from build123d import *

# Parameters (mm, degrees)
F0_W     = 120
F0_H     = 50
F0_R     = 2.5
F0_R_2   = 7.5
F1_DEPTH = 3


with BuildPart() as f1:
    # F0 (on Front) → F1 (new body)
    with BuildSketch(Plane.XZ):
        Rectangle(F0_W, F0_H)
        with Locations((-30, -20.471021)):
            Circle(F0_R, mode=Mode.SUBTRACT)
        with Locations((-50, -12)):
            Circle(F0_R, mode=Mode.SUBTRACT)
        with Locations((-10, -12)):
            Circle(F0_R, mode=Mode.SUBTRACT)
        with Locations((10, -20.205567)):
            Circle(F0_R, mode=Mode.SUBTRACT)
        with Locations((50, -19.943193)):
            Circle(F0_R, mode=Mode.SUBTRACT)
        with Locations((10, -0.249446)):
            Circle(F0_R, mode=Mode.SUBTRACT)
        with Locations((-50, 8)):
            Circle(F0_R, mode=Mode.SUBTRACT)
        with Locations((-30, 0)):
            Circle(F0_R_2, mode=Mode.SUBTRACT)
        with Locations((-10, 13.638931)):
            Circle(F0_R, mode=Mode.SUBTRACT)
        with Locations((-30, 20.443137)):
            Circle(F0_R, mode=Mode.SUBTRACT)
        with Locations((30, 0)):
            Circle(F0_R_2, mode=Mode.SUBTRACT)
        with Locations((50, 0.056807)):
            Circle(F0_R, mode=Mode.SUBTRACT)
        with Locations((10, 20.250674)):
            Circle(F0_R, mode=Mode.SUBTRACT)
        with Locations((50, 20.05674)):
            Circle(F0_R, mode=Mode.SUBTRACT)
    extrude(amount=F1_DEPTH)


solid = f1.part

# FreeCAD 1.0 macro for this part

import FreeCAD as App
import Part
import Sketcher
from FreeCAD import Vector
Q = App.Units.Quantity

doc = App.newDocument("Part")
body = doc.addObject("PartDesign::Body", "Body")

sketch1 = body.newObject("Sketcher::SketchObject", "Sketch")
sketch1.AttachmentSupport = (doc.getObject("XZ_Plane"), [""])
sketch1.MapMode = "FlatFace"
sketch1.addGeometry(Part.LineSegment(Vector(-60, 25, 0), Vector(-60, -25, 0)), False)
sketch1.addGeometry(Part.LineSegment(Vector(-60, -25, 0), Vector(60, -25, 0)), False)
sketch1.addGeometry(Part.LineSegment(Vector(60, -25, 0), Vector(60, 25, 0)), False)
sketch1.addGeometry(Part.LineSegment(Vector(60, 25, 0), Vector(-60, 25, 0)), False)
sketch1.addGeometry(Part.Circle(Vector(-30, -20.5, 0), Vector(0, 0, 1), 2.5), False)
sketch1.addGeometry(Part.Circle(Vector(-50, -12, 0), Vector(0, 0, 1), 2.5), False)
sketch1.addGeometry(Part.Circle(Vector(-10, -12, 0), Vector(0, 0, 1), 2.5), False)
sketch1.addGeometry(Part.Circle(Vector(10, -20.2, 0), Vector(0, 0, 1), 2.5), False)
sketch1.addGeometry(Part.Circle(Vector(50, -19.9, 0), Vector(0, 0, 1), 2.5), False)
sketch1.addGeometry(Part.Circle(Vector(10, -0.2, 0), Vector(0, 0, 1), 2.5), False)
sketch1.addGeometry(Part.Circle(Vector(-30, 0, 0), Vector(0, 0, 1), 7.5), False)
sketch1.addGeometry(Part.Circle(Vector(-50, 8, 0), Vector(0, 0, 1), 2.5), False)
sketch1.addGeometry(Part.Circle(Vector(-30, 20.4, 0), Vector(0, 0, 1), 2.5), False)
sketch1.addGeometry(Part.Circle(Vector(-10, 13.6, 0), Vector(0, 0, 1), 2.5), False)
sketch1.addGeometry(Part.Circle(Vector(30, 0, 0), Vector(0, 0, 1), 7.5), False)
sketch1.addGeometry(Part.Circle(Vector(50, 0.1, 0), Vector(0, 0, 1), 2.5), False)
sketch1.addGeometry(Part.Circle(Vector(10, 20.3, 0), Vector(0, 0, 1), 2.5), False)
sketch1.addGeometry(Part.Circle(Vector(50, 20.1, 0), Vector(0, 0, 1), 2.5), False)
sketch1.addConstraint(Sketcher.Constraint("Coincident", 0, 2, 1, 1))
sketch1.addConstraint(Sketcher.Constraint("Coincident", 1, 2, 2, 1))
sketch1.addConstraint(Sketcher.Constraint("Coincident", 2, 2, 3, 1))
sketch1.addConstraint(Sketcher.Constraint("Coincident", 3, 2, 0, 1))
sketch1.addConstraint(Sketcher.Constraint("Vertical", 0))
sketch1.addConstraint(Sketcher.Constraint("Horizontal", 1))
sketch1.addConstraint(Sketcher.Constraint("Vertical", 2))
sketch1.addConstraint(Sketcher.Constraint("Horizontal", 3))
sketch1.addConstraint(Sketcher.Constraint("Equal", 4, 5))
sketch1.addConstraint(Sketcher.Constraint("Equal", 5, 6))
sketch1.addConstraint(Sketcher.Constraint("Equal", 6, 7))
sketch1.addConstraint(Sketcher.Constraint("Equal", 7, 8))
sketch1.addConstraint(Sketcher.Constraint("Equal", 8, 9))
sketch1.addConstraint(Sketcher.Constraint("Equal", 9, 11))
sketch1.addConstraint(Sketcher.Constraint("Equal", 11, 12))
sketch1.addConstraint(Sketcher.Constraint("Equal", 12, 13))
sketch1.addConstraint(Sketcher.Constraint("Equal", 10, 14))
sketch1.addConstraint(Sketcher.Constraint("Equal", 13, 15))
sketch1.addConstraint(Sketcher.Constraint("Equal", 15, 16))
sketch1.addConstraint(Sketcher.Constraint("Equal", 16, 17))
sketch1.addConstraint(Sketcher.Constraint("Symmetric", 10, 3, 14, 3, -1, 1))
sketch1.addConstraint(Sketcher.Constraint("Symmetric", 0, 2, 2, 2, -1, 1))
sketch1.addConstraint(Sketcher.Constraint("PointOnObject", 10, 3, -1))
sketch1.addConstraint(Sketcher.Constraint("Horizontal", 5, 3, 6, 3))
sketch1.addConstraint(Sketcher.Constraint("Vertical", 7, 3, 9, 3))
sketch1.addConstraint(Sketcher.Constraint("Vertical", 4, 3, 10, 3))
sketch1.addConstraint(Sketcher.Constraint("Vertical", 5, 3, 11, 3))
sketch1.addConstraint(Sketcher.Constraint("Vertical", 10, 3, 12, 3))
sketch1.addConstraint(Sketcher.Constraint("Vertical", 6, 3, 13, 3))
sketch1.addConstraint(Sketcher.Constraint("Vertical", 8, 3, 15, 3))
sketch1.addConstraint(Sketcher.Constraint("Vertical", 9, 3, 16, 3))
sketch1.addConstraint(Sketcher.Constraint("Vertical", 15, 3, 17, 3))
sketch1.addConstraint(Sketcher.Constraint("Diameter", 4, Q("5 mm")))
sketch1.addConstraint(Sketcher.Constraint("Diameter", 10, Q("15 mm")))
sketch1.addConstraint(Sketcher.Constraint("DistanceX", 1, 1, 1, 2, Q("120 mm")))
sketch1.addConstraint(Sketcher.Constraint("DistanceY", 0, 2, 0, 1, Q("50 mm")))
sketch1.addConstraint(Sketcher.Constraint("DistanceX", 4, 3, -1, 1, Q("30 mm")))
sketch1.addConstraint(Sketcher.Constraint("DistanceX", 5, 3, -1, 1, Q("50 mm")))
sketch1.addConstraint(Sketcher.Constraint("DistanceY", 5, 3, -1, 1, Q("12 mm")))
sketch1.addConstraint(Sketcher.Constraint("DistanceX", 6, 3, -1, 1, Q("10 mm")))
sketch1.addConstraint(Sketcher.Constraint("DistanceX", -1, 1, 7, 3, Q("10 mm")))
sketch1.addConstraint(Sketcher.Constraint("DistanceX", -1, 1, 8, 3, Q("50 mm")))
sketch1.addConstraint(Sketcher.Constraint("DistanceY", -1, 1, 11, 3, Q("8 mm")))
sketch1.addConstraint(Sketcher.Constraint("DistanceY", 8, 3, 15, 3, Q("20 mm")))
sketch1.addConstraint(Sketcher.Constraint("DistanceY", 7, 3, 13, 3, Q("33.844498 mm")))
sketch1.addConstraint(Sketcher.Constraint("DistanceY", 4, 3, -1, 1, Q("20.471021 mm")))
sketch1.addConstraint(Sketcher.Constraint("DistanceY", -1, 1, 13, 3, Q("13.638931 mm")))
sketch1.addConstraint(Sketcher.Constraint("DistanceY", -1, 1, 17, 3, Q("20.05674 mm")))
sketch1.addConstraint(Sketcher.Constraint("DistanceY", 7, 3, 9, 3, Q("19.956121 mm")))
sketch1.addConstraint(Sketcher.Constraint("DistanceY", 9, 3, 16, 3, Q("20.50012 mm")))
sketch1.addConstraint(Sketcher.Constraint("DistanceY", 8, 3, -1, 1, Q("19.943193 mm")))
sketch1.addConstraint(Sketcher.Constraint("DistanceY", -1, 1, 12, 3, Q("20.443137 mm")))
pad1 = body.newObject("PartDesign::Pad", "Pad")
pad1.Profile = sketch1
pad1.Length = 3

doc.recompute()
